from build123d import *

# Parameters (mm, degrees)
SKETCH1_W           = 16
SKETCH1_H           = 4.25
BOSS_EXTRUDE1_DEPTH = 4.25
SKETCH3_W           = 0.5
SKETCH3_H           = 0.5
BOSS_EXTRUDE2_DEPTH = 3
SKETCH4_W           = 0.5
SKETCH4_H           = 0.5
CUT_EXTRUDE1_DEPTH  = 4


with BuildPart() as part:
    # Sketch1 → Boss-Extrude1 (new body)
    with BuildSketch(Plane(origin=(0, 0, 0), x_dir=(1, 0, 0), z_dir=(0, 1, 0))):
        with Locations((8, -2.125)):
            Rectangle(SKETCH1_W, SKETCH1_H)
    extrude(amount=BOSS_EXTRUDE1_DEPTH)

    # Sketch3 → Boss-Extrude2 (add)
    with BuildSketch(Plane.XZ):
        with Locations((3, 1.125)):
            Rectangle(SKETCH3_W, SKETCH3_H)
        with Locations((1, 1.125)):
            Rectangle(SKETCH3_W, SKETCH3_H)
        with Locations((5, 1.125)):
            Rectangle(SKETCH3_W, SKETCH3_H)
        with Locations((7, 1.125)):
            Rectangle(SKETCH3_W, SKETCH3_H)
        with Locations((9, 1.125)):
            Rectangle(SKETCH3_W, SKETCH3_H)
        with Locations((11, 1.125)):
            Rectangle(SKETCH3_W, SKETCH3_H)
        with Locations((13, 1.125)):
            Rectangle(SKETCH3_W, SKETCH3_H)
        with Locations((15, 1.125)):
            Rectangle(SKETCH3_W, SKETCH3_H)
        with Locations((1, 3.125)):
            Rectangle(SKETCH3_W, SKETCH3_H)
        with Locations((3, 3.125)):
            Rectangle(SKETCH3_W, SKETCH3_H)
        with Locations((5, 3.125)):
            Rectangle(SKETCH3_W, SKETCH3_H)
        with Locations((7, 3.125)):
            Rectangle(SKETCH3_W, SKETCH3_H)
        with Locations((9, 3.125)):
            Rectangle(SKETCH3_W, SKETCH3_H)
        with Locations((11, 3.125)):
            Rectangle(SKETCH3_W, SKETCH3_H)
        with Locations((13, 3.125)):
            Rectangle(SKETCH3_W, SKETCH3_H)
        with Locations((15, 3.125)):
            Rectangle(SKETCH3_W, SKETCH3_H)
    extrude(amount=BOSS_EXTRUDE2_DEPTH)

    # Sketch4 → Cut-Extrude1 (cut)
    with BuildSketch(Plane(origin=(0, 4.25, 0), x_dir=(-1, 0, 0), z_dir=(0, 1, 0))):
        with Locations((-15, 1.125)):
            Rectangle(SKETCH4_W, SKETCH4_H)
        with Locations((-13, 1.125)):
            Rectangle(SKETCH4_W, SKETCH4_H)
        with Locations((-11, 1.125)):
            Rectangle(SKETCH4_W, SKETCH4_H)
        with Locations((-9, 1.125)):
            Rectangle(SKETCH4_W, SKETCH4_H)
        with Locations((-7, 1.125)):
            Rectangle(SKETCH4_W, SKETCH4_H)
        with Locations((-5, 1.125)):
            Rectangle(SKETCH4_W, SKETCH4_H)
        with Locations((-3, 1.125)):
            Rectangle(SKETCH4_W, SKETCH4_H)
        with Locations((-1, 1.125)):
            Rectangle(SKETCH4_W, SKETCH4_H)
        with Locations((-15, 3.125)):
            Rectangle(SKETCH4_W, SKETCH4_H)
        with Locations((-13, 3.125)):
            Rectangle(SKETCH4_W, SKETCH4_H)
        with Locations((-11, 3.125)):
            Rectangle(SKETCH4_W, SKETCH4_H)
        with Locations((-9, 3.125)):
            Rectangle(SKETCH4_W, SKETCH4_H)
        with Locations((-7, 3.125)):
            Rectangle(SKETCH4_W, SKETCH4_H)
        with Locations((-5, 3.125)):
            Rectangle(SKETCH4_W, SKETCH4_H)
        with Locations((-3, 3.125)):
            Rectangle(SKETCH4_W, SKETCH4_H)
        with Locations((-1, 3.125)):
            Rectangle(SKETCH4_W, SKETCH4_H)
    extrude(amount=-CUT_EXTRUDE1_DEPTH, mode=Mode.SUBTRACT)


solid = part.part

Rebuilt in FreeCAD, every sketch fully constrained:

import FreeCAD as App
import Part
import Sketcher

V = App.Vector
Q = App.Units.Quantity

doc = App.newDocument("Part")
body = doc.addObject("PartDesign::Body", "Body")

# Sketch on XZ plane
sketch1 = body.newObject("Sketcher::SketchObject", "Sketch")
sketch1.AttachmentSupport = (doc.getObject("XZ_Plane"), [""])
sketch1.MapMode = "FlatFace"
sketch1.addGeometry(Part.LineSegment(V(0, 0, 0), V(0, 4.2, 0)), False)
sketch1.addGeometry(Part.LineSegment(V(0, 4.2, 0), V(16, 4.2, 0)), False)
sketch1.addGeometry(Part.LineSegment(V(16, 4.2, 0), V(16, 0, 0)), False)
sketch1.addGeometry(Part.LineSegment(V(16, 0, 0), V(0, 0, 0)), False)
sketch1.addConstraint(Sketcher.Constraint("Coincident", 0, 2, 1, 1))
sketch1.addConstraint(Sketcher.Constraint("Coincident", 1, 2, 2, 1))
sketch1.addConstraint(Sketcher.Constraint("Coincident", 2, 2, 3, 1))
sketch1.addConstraint(Sketcher.Constraint("Coincident", 3, 2, 0, 1))
sketch1.addConstraint(Sketcher.Constraint("Vertical", 0))
sketch1.addConstraint(Sketcher.Constraint("Horizontal", 1))
sketch1.addConstraint(Sketcher.Constraint("Vertical", 2))
sketch1.addConstraint(Sketcher.Constraint("Horizontal", 3))
sketch1.addConstraint(Sketcher.Constraint("Coincident", 3, 2, -1, 1))
sketch1.addConstraint(Sketcher.Constraint("DistanceX", 1, 1, 1, 2, Q("16 mm")))
sketch1.addConstraint(Sketcher.Constraint("DistanceY", 0, 1, 0, 2, Q("4.25 mm")))
pad1 = body.newObject("PartDesign::Pad", "Pad")
pad1.Profile = sketch1
pad1.Length = 4.25
pad1.Reversed = True

# Sketch on XZ plane
sketch2 = body.newObject("Sketcher::SketchObject", "Sketch001")
sketch2.AttachmentSupport = (doc.getObject("XZ_Plane"), [""])
sketch2.MapMode = "FlatFace"
sketch2.addGeometry(Part.LineSegment(V(2.8, 1.4, 0), V(2.8, 0.9, 0)), False)
sketch2.addGeometry(Part.LineSegment(V(2.8, 0.9, 0), V(3.2, 0.9, 0)), False)
sketch2.addGeometry(Part.LineSegment(V(3.2, 0.9, 0), V(3.2, 1.4, 0)), False)
sketch2.addGeometry(Part.LineSegment(V(3.2, 1.4, 0), V(2.8, 1.4, 0)), False)
sketch2.addGeometry(Part.LineSegment(V(0.8, 1.4, 0), V(0.8, 0.9, 0)), False)
sketch2.addGeometry(Part.LineSegment(V(0.8, 0.9, 0), V(1.2, 0.9, 0)), False)
sketch2.addGeometry(Part.LineSegment(V(1.2, 0.9, 0), V(1.2, 1.4, 0)), False)
sketch2.addGeometry(Part.LineSegment(V(1.2, 1.4, 0), V(0.8, 1.4, 0)), False)
sketch2.addGeometry(Part.LineSegment(V(4.8, 1.4, 0), V(4.8, 0.9, 0)), False)
sketch2.addGeometry(Part.LineSegment(V(4.8, 0.9, 0), V(5.2, 0.9, 0)), False)
sketch2.addGeometry(Part.LineSegment(V(5.2, 0.9, 0), V(5.2, 1.4, 0)), False)
sketch2.addGeometry(Part.LineSegment(V(5.2, 1.4, 0), V(4.8, 1.4, 0)), False)
sketch2.addGeometry(Part.LineSegment(V(6.8, 1.4, 0), V(6.8, 0.9, 0)), False)
sketch2.addGeometry(Part.LineSegment(V(6.8, 0.9, 0), V(7.2, 0.9, 0)), False)
sketch2.addGeometry(Part.LineSegment(V(7.2, 0.9, 0), V(7.2, 1.4, 0)), False)
sketch2.addGeometry(Part.LineSegment(V(7.2, 1.4, 0), V(6.8, 1.4, 0)), False)
sketch2.addGeometry(Part.LineSegment(V(8.8, 1.4, 0), V(8.8, 0.9, 0)), False)
sketch2.addGeometry(Part.LineSegment(V(8.8, 0.9, 0), V(9.2, 0.9, 0)), False)
sketch2.addGeometry(Part.LineSegment(V(9.2, 0.9, 0), V(9.2, 1.4, 0)), False)
sketch2.addGeometry(Part.LineSegment(V(9.2, 1.4, 0), V(8.8, 1.4, 0)), False)
sketch2.addGeometry(Part.LineSegment(V(10.8, 1.4, 0), V(10.8, 0.9, 0)), False)
sketch2.addGeometry(Part.LineSegment(V(10.8, 0.9, 0), V(11.2, 0.9, 0)), False)
sketch2.addGeometry(Part.LineSegment(V(11.2, 0.9, 0), V(11.2, 1.4, 0)), False)
sketch2.addGeometry(Part.LineSegment(V(11.2, 1.4, 0), V(10.8, 1.4, 0)), False)
sketch2.addGeometry(Part.LineSegment(V(12.8, 1.4, 0), V(12.8, 0.9, 0)), False)
sketch2.addGeometry(Part.LineSegment(V(12.8, 0.9, 0), V(13.2, 0.9, 0)), False)
sketch2.addGeometry(Part.LineSegment(V(13.2, 0.9, 0), V(13.2, 1.4, 0)), False)
sketch2.addGeometry(Part.LineSegment(V(13.2, 1.4, 0), V(12.8, 1.4, 0)), False)
sketch2.addGeometry(Part.LineSegment(V(14.8, 1.4, 0), V(14.8, 0.9, 0)), False)
sketch2.addGeometry(Part.LineSegment(V(14.8, 0.9, 0), V(15.2, 0.9, 0)), False)
sketch2.addGeometry(Part.LineSegment(V(15.2, 0.9, 0), V(15.2, 1.4, 0)), False)
sketch2.addGeometry(Part.LineSegment(V(15.2, 1.4, 0), V(14.8, 1.4, 0)), False)
sketch2.addGeometry(Part.LineSegment(V(0.8, 3.4, 0), V(0.8, 2.9, 0)), False)
sketch2.addGeometry(Part.LineSegment(V(0.8, 2.9, 0), V(1.2, 2.9, 0)), False)
sketch2.addGeometry(Part.LineSegment(V(1.2, 2.9, 0), V(1.2, 3.4, 0)), False)
sketch2.addGeometry(Part.LineSegment(V(1.2, 3.4, 0), V(0.8, 3.4, 0)), False)
sketch2.addGeometry(Part.LineSegment(V(2.8, 3.4, 0), V(2.8, 2.9, 0)), False)
sketch2.addGeometry(Part.LineSegment(V(2.8, 2.9, 0), V(3.2, 2.9, 0)), False)
sketch2.addGeometry(Part.LineSegment(V(3.2, 2.9, 0), V(3.2, 3.4, 0)), False)
sketch2.addGeometry(Part.LineSegment(V(3.2, 3.4, 0), V(2.8, 3.4, 0)), False)
sketch2.addGeometry(Part.LineSegment(V(4.8, 3.4, 0), V(4.8, 2.9, 0)), False)
sketch2.addGeometry(Part.LineSegment(V(4.8, 2.9, 0), V(5.2, 2.9, 0)), False)
sketch2.addGeometry(Part.LineSegment(V(5.2, 2.9, 0), V(5.2, 3.4, 0)), False)
sketch2.addGeometry(Part.LineSegment(V(5.2, 3.4, 0), V(4.8, 3.4, 0)), False)
sketch2.addGeometry(Part.LineSegment(V(6.8, 3.4, 0), V(6.8, 2.9, 0)), False)
sketch2.addGeometry(Part.LineSegment(V(6.8, 2.9, 0), V(7.2, 2.9, 0)), False)
sketch2.addGeometry(Part.LineSegment(V(7.2, 2.9, 0), V(7.2, 3.4, 0)), False)
sketch2.addGeometry(Part.LineSegment(V(7.2, 3.4, 0), V(6.8, 3.4, 0)), False)
sketch2.addGeometry(Part.LineSegment(V(8.8, 3.4, 0), V(8.8, 2.9, 0)), False)
sketch2.addGeometry(Part.LineSegment(V(8.8, 2.9, 0), V(9.2, 2.9, 0)), False)
sketch2.addGeometry(Part.LineSegment(V(9.2, 2.9, 0), V(9.2, 3.4, 0)), False)
sketch2.addGeometry(Part.LineSegment(V(9.2, 3.4, 0), V(8.8, 3.4, 0)), False)
sketch2.addGeometry(Part.LineSegment(V(10.8, 3.4, 0), V(10.8, 2.9, 0)), False)
sketch2.addGeometry(Part.LineSegment(V(10.8, 2.9, 0), V(11.2, 2.9, 0)), False)
sketch2.addGeometry(Part.LineSegment(V(11.2, 2.9, 0), V(11.2, 3.4, 0)), False)
sketch2.addGeometry(Part.LineSegment(V(11.2, 3.4, 0), V(10.8, 3.4, 0)), False)
sketch2.addGeometry(Part.LineSegment(V(12.8, 3.4, 0), V(12.8, 2.9, 0)), False)
sketch2.addGeometry(Part.LineSegment(V(12.8, 2.9, 0), V(13.2, 2.9, 0)), False)
sketch2.addGeometry(Part.LineSegment(V(13.2, 2.9, 0), V(13.2, 3.4, 0)), False)
sketch2.addGeometry(Part.LineSegment(V(13.2, 3.4, 0), V(12.8, 3.4, 0)), False)
sketch2.addGeometry(Part.LineSegment(V(14.8, 3.4, 0), V(14.8, 2.9, 0)), False)
sketch2.addGeometry(Part.LineSegment(V(14.8, 2.9, 0), V(15.2, 2.9, 0)), False)
sketch2.addGeometry(Part.LineSegment(V(15.2, 2.9, 0), V(15.2, 3.4, 0)), False)
sketch2.addGeometry(Part.LineSegment(V(15.2, 3.4, 0), V(14.8, 3.4, 0)), False)
sketch2.addConstraint(Sketcher.Constraint("Coincident", 0, 2, 1, 1))
sketch2.addConstraint(Sketcher.Constraint("Coincident", 1, 2, 2, 1))
sketch2.addConstraint(Sketcher.Constraint("Coincident", 2, 2, 3, 1))
sketch2.addConstraint(Sketcher.Constraint("Coincident", 3, 2, 0, 1))
sketch2.addConstraint(Sketcher.Constraint("Coincident", 4, 2, 5, 1))
sketch2.addConstraint(Sketcher.Constraint("Coincident", 5, 2, 6, 1))
sketch2.addConstraint(Sketcher.Constraint("Coincident", 6, 2, 7, 1))
sketch2.addConstraint(Sketcher.Constraint("Coincident", 7, 2, 4, 1))
sketch2.addConstraint(Sketcher.Constraint("Coincident", 8, 2, 9, 1))
sketch2.addConstraint(Sketcher.Constraint("Coincident", 9, 2, 10, 1))
sketch2.addConstraint(Sketcher.Constraint("Coincident", 10, 2, 11, 1))
sketch2.addConstraint(Sketcher.Constraint("Coincident", 11, 2, 8, 1))
sketch2.addConstraint(Sketcher.Constraint("Coincident", 12, 2, 13, 1))
sketch2.addConstraint(Sketcher.Constraint("Coincident", 13, 2, 14, 1))
sketch2.addConstraint(Sketcher.Constraint("Coincident", 14, 2, 15, 1))
sketch2.addConstraint(Sketcher.Constraint("Coincident", 15, 2, 12, 1))
sketch2.addConstraint(Sketcher.Constraint("Coincident", 16, 2, 17, 1))
sketch2.addConstraint(Sketcher.Constraint("Coincident", 17, 2, 18, 1))
sketch2.addConstraint(Sketcher.Constraint("Coincident", 18, 2, 19, 1))
sketch2.addConstraint(Sketcher.Constraint("Coincident", 19, 2, 16, 1))
sketch2.addConstraint(Sketcher.Constraint("Coincident", 20, 2, 21, 1))
sketch2.addConstraint(Sketcher.Constraint("Coincident", 21, 2, 22, 1))
sketch2.addConstraint(Sketcher.Constraint("Coincident", 22, 2, 23, 1))
sketch2.addConstraint(Sketcher.Constraint("Coincident", 23, 2, 20, 1))
sketch2.addConstraint(Sketcher.Constraint("Coincident", 24, 2, 25, 1))
sketch2.addConstraint(Sketcher.Constraint("Coincident", 25, 2, 26, 1))
sketch2.addConstraint(Sketcher.Constraint("Coincident", 26, 2, 27, 1))
sketch2.addConstraint(Sketcher.Constraint("Coincident", 27, 2, 24, 1))
sketch2.addConstraint(Sketcher.Constraint("Coincident", 28, 2, 29, 1))
sketch2.addConstraint(Sketcher.Constraint("Coincident", 29, 2, 30, 1))
sketch2.addConstraint(Sketcher.Constraint("Coincident", 30, 2, 31, 1))
sketch2.addConstraint(Sketcher.Constraint("Coincident", 31, 2, 28, 1))
sketch2.addConstraint(Sketcher.Constraint("Coincident", 32, 2, 33, 1))
sketch2.addConstraint(Sketcher.Constraint("Coincident", 33, 2, 34, 1))
sketch2.addConstraint(Sketcher.Constraint("Coincident", 34, 2, 35, 1))
sketch2.addConstraint(Sketcher.Constraint("Coincident", 35, 2, 32, 1))
sketch2.addConstraint(Sketcher.Constraint("Coincident", 36, 2, 37, 1))
sketch2.addConstraint(Sketcher.Constraint("Coincident", 37, 2, 38, 1))
sketch2.addConstraint(Sketcher.Constraint("Coincident", 38, 2, 39, 1))
sketch2.addConstraint(Sketcher.Constraint("Coincident", 39, 2, 36, 1))
sketch2.addConstraint(Sketcher.Constraint("Coincident", 40, 2, 41, 1))
sketch2.addConstraint(Sketcher.Constraint("Coincident", 41, 2, 42, 1))
sketch2.addConstraint(Sketcher.Constraint("Coincident", 42, 2, 43, 1))
sketch2.addConstraint(Sketcher.Constraint("Coincident", 43, 2, 40, 1))
sketch2.addConstraint(Sketcher.Constraint("Coincident", 44, 2, 45, 1))
sketch2.addConstraint(Sketcher.Constraint("Coincident", 45, 2, 46, 1))
sketch2.addConstraint(Sketcher.Constraint("Coincident", 46, 2, 47, 1))
sketch2.addConstraint(Sketcher.Constraint("Coincident", 47, 2, 44, 1))
sketch2.addConstraint(Sketcher.Constraint("Coincident", 48, 2, 49, 1))
sketch2.addConstraint(Sketcher.Constraint("Coincident", 49, 2, 50, 1))
sketch2.addConstraint(Sketcher.Constraint("Coincident", 50, 2, 51, 1))
sketch2.addConstraint(Sketcher.Constraint("Coincident", 51, 2, 48, 1))
sketch2.addConstraint(Sketcher.Constraint("Coincident", 52, 2, 53, 1))
sketch2.addConstraint(Sketcher.Constraint("Coincident", 53, 2, 54, 1))
sketch2.addConstraint(Sketcher.Constraint("Coincident", 54, 2, 55, 1))
sketch2.addConstraint(Sketcher.Constraint("Coincident", 55, 2, 52, 1))
sketch2.addConstraint(Sketcher.Constraint("Coincident", 56, 2, 57, 1))
sketch2.addConstraint(Sketcher.Constraint("Coincident", 57, 2, 58, 1))
sketch2.addConstraint(Sketcher.Constraint("Coincident", 58, 2, 59, 1))
sketch2.addConstraint(Sketcher.Constraint("Coincident", 59, 2, 56, 1))
sketch2.addConstraint(Sketcher.Constraint("Coincident", 60, 2, 61, 1))
sketch2.addConstraint(Sketcher.Constraint("Coincident", 61, 2, 62, 1))
sketch2.addConstraint(Sketcher.Constraint("Coincident", 62, 2, 63, 1))
sketch2.addConstraint(Sketcher.Constraint("Coincident", 63, 2, 60, 1))
sketch2.addConstraint(Sketcher.Constraint("Vertical", 0))
sketch2.addConstraint(Sketcher.Constraint("Horizontal", 1))
sketch2.addConstraint(Sketcher.Constraint("Vertical", 2))
sketch2.addConstraint(Sketcher.Constraint("Horizontal", 3))
sketch2.addConstraint(Sketcher.Constraint("Vertical", 4))
sketch2.addConstraint(Sketcher.Constraint("Horizontal", 5))
sketch2.addConstraint(Sketcher.Constraint("Vertical", 6))
sketch2.addConstraint(Sketcher.Constraint("Horizontal", 7))
sketch2.addConstraint(Sketcher.Constraint("Vertical", 8))
sketch2.addConstraint(Sketcher.Constraint("Horizontal", 9))
sketch2.addConstraint(Sketcher.Constraint("Vertical", 10))
sketch2.addConstraint(Sketcher.Constraint("Horizontal", 11))
sketch2.addConstraint(Sketcher.Constraint("Vertical", 12))
sketch2.addConstraint(Sketcher.Constraint("Horizontal", 13))
sketch2.addConstraint(Sketcher.Constraint("Vertical", 14))
sketch2.addConstraint(Sketcher.Constraint("Horizontal", 15))
sketch2.addConstraint(Sketcher.Constraint("Vertical", 16))
sketch2.addConstraint(Sketcher.Constraint("Horizontal", 17))
sketch2.addConstraint(Sketcher.Constraint("Vertical", 18))
sketch2.addConstraint(Sketcher.Constraint("Horizontal", 19))
sketch2.addConstraint(Sketcher.Constraint("Vertical", 20))
sketch2.addConstraint(Sketcher.Constraint("Horizontal", 21))
sketch2.addConstraint(Sketcher.Constraint("Vertical", 22))
sketch2.addConstraint(Sketcher.Constraint("Horizontal", 23))
sketch2.addConstraint(Sketcher.Constraint("Vertical", 24))
sketch2.addConstraint(Sketcher.Constraint("Horizontal", 25))
sketch2.addConstraint(Sketcher.Constraint("Vertical", 26))
sketch2.addConstraint(Sketcher.Constraint("Horizontal", 27))
sketch2.addConstraint(Sketcher.Constraint("Vertical", 28))
sketch2.addConstraint(Sketcher.Constraint("Horizontal", 29))
sketch2.addConstraint(Sketcher.Constraint("Vertical", 30))
sketch2.addConstraint(Sketcher.Constraint("Horizontal", 31))
sketch2.addConstraint(Sketcher.Constraint("Vertical", 32))
sketch2.addConstraint(Sketcher.Constraint("Horizontal", 33))
sketch2.addConstraint(Sketcher.Constraint("Vertical", 34))
sketch2.addConstraint(Sketcher.Constraint("Horizontal", 35))
sketch2.addConstraint(Sketcher.Constraint("Vertical", 36))
sketch2.addConstraint(Sketcher.Constraint("Horizontal", 37))
sketch2.addConstraint(Sketcher.Constraint("Vertical", 38))
sketch2.addConstraint(Sketcher.Constraint("Horizontal", 39))
sketch2.addConstraint(Sketcher.Constraint("Vertical", 40))
sketch2.addConstraint(Sketcher.Constraint("Horizontal", 41))
sketch2.addConstraint(Sketcher.Constraint("Vertical", 42))
sketch2.addConstraint(Sketcher.Constraint("Horizontal", 43))
sketch2.addConstraint(Sketcher.Constraint("Vertical", 44))
sketch2.addConstraint(Sketcher.Constraint("Horizontal", 45))
sketch2.addConstraint(Sketcher.Constraint("Vertical", 46))
sketch2.addConstraint(Sketcher.Constraint("Horizontal", 47))
sketch2.addConstraint(Sketcher.Constraint("Vertical", 48))
sketch2.addConstraint(Sketcher.Constraint("Horizontal", 49))
sketch2.addConstraint(Sketcher.Constraint("Vertical", 50))
sketch2.addConstraint(Sketcher.Constraint("Horizontal", 51))
sketch2.addConstraint(Sketcher.Constraint("Vertical", 52))
sketch2.addConstraint(Sketcher.Constraint("Horizontal", 53))
sketch2.addConstraint(Sketcher.Constraint("Vertical", 54))
sketch2.addConstraint(Sketcher.Constraint("Horizontal", 55))
sketch2.addConstraint(Sketcher.Constraint("Vertical", 56))
sketch2.addConstraint(Sketcher.Constraint("Horizontal", 57))
sketch2.addConstraint(Sketcher.Constraint("Vertical", 58))
sketch2.addConstraint(Sketcher.Constraint("Horizontal", 59))
sketch2.addConstraint(Sketcher.Constraint("Vertical", 60))
sketch2.addConstraint(Sketcher.Constraint("Horizontal", 61))
sketch2.addConstraint(Sketcher.Constraint("Vertical", 62))
sketch2.addConstraint(Sketcher.Constraint("Horizontal", 63))
sketch2.addConstraint(Sketcher.Constraint("Horizontal", 1, 2, 4, 2))
sketch2.addConstraint(Sketcher.Constraint("Horizontal", 3, 2, 6, 2))
sketch2.addConstraint(Sketcher.Constraint("Horizontal", 5, 2, 8, 2))
sketch2.addConstraint(Sketcher.Constraint("Horizontal", 7, 2, 10, 2))
sketch2.addConstraint(Sketcher.Constraint("Horizontal", 9, 2, 12, 2))
sketch2.addConstraint(Sketcher.Constraint("Horizontal", 11, 2, 14, 2))
sketch2.addConstraint(Sketcher.Constraint("Horizontal", 13, 2, 16, 2))
sketch2.addConstraint(Sketcher.Constraint("Horizontal", 15, 2, 18, 2))
sketch2.addConstraint(Sketcher.Constraint("Horizontal", 17, 2, 20, 2))
sketch2.addConstraint(Sketcher.Constraint("Horizontal", 19, 2, 22, 2))
sketch2.addConstraint(Sketcher.Constraint("Horizontal", 21, 2, 24, 2))
sketch2.addConstraint(Sketcher.Constraint("Horizontal", 23, 2, 26, 2))
sketch2.addConstraint(Sketcher.Constraint("Horizontal", 25, 2, 28, 2))
sketch2.addConstraint(Sketcher.Constraint("Horizontal", 27, 2, 30, 2))
sketch2.addConstraint(Sketcher.Constraint("Horizontal", 33, 2, 36, 2))
sketch2.addConstraint(Sketcher.Constraint("Horizontal", 35, 2, 38, 2))
sketch2.addConstraint(Sketcher.Constraint("Horizontal", 37, 2, 40, 2))
sketch2.addConstraint(Sketcher.Constraint("Horizontal", 39, 2, 42, 2))
sketch2.addConstraint(Sketcher.Constraint("Horizontal", 41, 2, 44, 2))
sketch2.addConstraint(Sketcher.Constraint("Horizontal", 43, 2, 46, 2))
sketch2.addConstraint(Sketcher.Constraint("Horizontal", 45, 2, 48, 2))
sketch2.addConstraint(Sketcher.Constraint("Horizontal", 47, 2, 50, 2))
sketch2.addConstraint(Sketcher.Constraint("Horizontal", 49, 2, 52, 2))
sketch2.addConstraint(Sketcher.Constraint("Horizontal", 51, 2, 54, 2))
sketch2.addConstraint(Sketcher.Constraint("Horizontal", 53, 2, 56, 2))
sketch2.addConstraint(Sketcher.Constraint("Horizontal", 55, 2, 58, 2))
sketch2.addConstraint(Sketcher.Constraint("Horizontal", 57, 2, 60, 2))
sketch2.addConstraint(Sketcher.Constraint("Horizontal", 59, 2, 62, 2))
sketch2.addConstraint(Sketcher.Constraint("Vertical", 7, 2, 32, 2))
sketch2.addConstraint(Sketcher.Constraint("Vertical", 6, 2, 33, 2))
sketch2.addConstraint(Sketcher.Constraint("Vertical", 3, 2, 36, 2))
sketch2.addConstraint(Sketcher.Constraint("Vertical", 2, 2, 37, 2))
sketch2.addConstraint(Sketcher.Constraint("Vertical", 11, 2, 40, 2))
sketch2.addConstraint(Sketcher.Constraint("Vertical", 10, 2, 41, 2))
sketch2.addConstraint(Sketcher.Constraint("Vertical", 15, 2, 44, 2))
sketch2.addConstraint(Sketcher.Constraint("Vertical", 14, 2, 45, 2))
sketch2.addConstraint(Sketcher.Constraint("Vertical", 19, 2, 48, 2))
sketch2.addConstraint(Sketcher.Constraint("Vertical", 18, 2, 49, 2))
sketch2.addConstraint(Sketcher.Constraint("Vertical", 23, 2, 52, 2))
sketch2.addConstraint(Sketcher.Constraint("Vertical", 22, 2, 53, 2))
sketch2.addConstraint(Sketcher.Constraint("Vertical", 27, 2, 56, 2))
sketch2.addConstraint(Sketcher.Constraint("Vertical", 26, 2, 57, 2))
sketch2.addConstraint(Sketcher.Constraint("Vertical", 31, 2, 60, 2))
sketch2.addConstraint(Sketcher.Constraint("Vertical", 30, 2, 61, 2))
sketch2.addConstraint(Sketcher.Constraint("Equal", 3, 5))
sketch2.addConstraint(Sketcher.Constraint("Equal", 7, 9))
sketch2.addConstraint(Sketcher.Constraint("Equal", 11, 13))
sketch2.addConstraint(Sketcher.Constraint("Equal", 15, 17))
sketch2.addConstraint(Sketcher.Constraint("Equal", 19, 21))
sketch2.addConstraint(Sketcher.Constraint("Equal", 23, 25))
sketch2.addConstraint(Sketcher.Constraint("Equal", 27, 29))
sketch2.addConstraint(Sketcher.Constraint("Equal", 63, 0))
sketch2.addConstraint(Sketcher.Constraint("Equal", 30, 32))
sketch2.addConstraint(Sketcher.Constraint("DistanceX", 1, 1, 1, 2, Q("0.5 mm")))
sketch2.addConstraint(Sketcher.Constraint("DistanceX", -1, 1, 0, 2, Q("2.75 mm")))
sketch2.addConstraint(Sketcher.Constraint("DistanceX", -1, 1, 4, 2, Q("0.75 mm")))
sketch2.addConstraint(Sketcher.Constraint("DistanceX", -1, 1, 8, 2, Q("4.75 mm")))
sketch2.addConstraint(Sketcher.Constraint("DistanceX", -1, 1, 12, 2, Q("6.75 mm")))
sketch2.addConstraint(Sketcher.Constraint("DistanceX", -1, 1, 16, 2, Q("8.75 mm")))
sketch2.addConstraint(Sketcher.Constraint("DistanceX", -1, 1, 20, 2, Q("10.75 mm")))
sketch2.addConstraint(Sketcher.Constraint("DistanceX", -1, 1, 24, 2, Q("12.75 mm")))
sketch2.addConstraint(Sketcher.Constraint("DistanceX", -1, 1, 28, 2, Q("14.75 mm")))
sketch2.addConstraint(Sketcher.Constraint("DistanceY", -1, 1, 0, 2, Q("0.875 mm")))
sketch2.addConstraint(Sketcher.Constraint("DistanceY", -1, 1, 32, 2, Q("2.875 mm")))
pad2 = body.newObject("PartDesign::Pad", "Pad001")
pad2.Profile = sketch2
pad2.Length = 3

# Sketch on XZ plane
sketch3 = body.newObject("Sketcher::SketchObject", "Sketch002")
sketch3.AttachmentSupport = (doc.getObject("XZ_Plane"), [""])
sketch3.MapMode = "FlatFace"
sketch3.AttachmentOffset = App.Placement(V(0, 0, -4.25), App.Rotation())
sketch3.addGeometry(Part.LineSegment(V(15.2, 1.4, 0), V(15.2, 0.9, 0)), False)
sketch3.addGeometry(Part.LineSegment(V(15.2, 0.9, 0), V(14.8, 0.9, 0)), False)
sketch3.addGeometry(Part.LineSegment(V(14.8, 0.9, 0), V(14.8, 1.4, 0)), False)
sketch3.addGeometry(Part.LineSegment(V(14.8, 1.4, 0), V(15.2, 1.4, 0)), False)
sketch3.addGeometry(Part.LineSegment(V(13.2, 1.4, 0), V(13.2, 0.9, 0)), False)
sketch3.addGeometry(Part.LineSegment(V(13.2, 0.9, 0), V(12.8, 0.9, 0)), False)
sketch3.addGeometry(Part.LineSegment(V(12.8, 0.9, 0), V(12.8, 1.4, 0)), False)
sketch3.addGeometry(Part.LineSegment(V(12.8, 1.4, 0), V(13.2, 1.4, 0)), False)
sketch3.addGeometry(Part.LineSegment(V(11.2, 1.4, 0), V(11.2, 0.9, 0)), False)
sketch3.addGeometry(Part.LineSegment(V(11.2, 0.9, 0), V(10.8, 0.9, 0)), False)
sketch3.addGeometry(Part.LineSegment(V(10.8, 0.9, 0), V(10.8, 1.4, 0)), False)
sketch3.addGeometry(Part.LineSegment(V(10.8, 1.4, 0), V(11.2, 1.4, 0)), False)
sketch3.addGeometry(Part.LineSegment(V(9.2, 1.4, 0), V(9.2, 0.9, 0)), False)
sketch3.addGeometry(Part.LineSegment(V(9.2, 0.9, 0), V(8.8, 0.9, 0)), False)
sketch3.addGeometry(Part.LineSegment(V(8.8, 0.9, 0), V(8.8, 1.4, 0)), False)
sketch3.addGeometry(Part.LineSegment(V(8.8, 1.4, 0), V(9.2, 1.4, 0)), False)
sketch3.addGeometry(Part.LineSegment(V(7.2, 1.4, 0), V(7.2, 0.9, 0)), False)
sketch3.addGeometry(Part.LineSegment(V(7.2, 0.9, 0), V(6.8, 0.9, 0)), False)
sketch3.addGeometry(Part.LineSegment(V(6.8, 0.9, 0), V(6.8, 1.4, 0)), False)
sketch3.addGeometry(Part.LineSegment(V(6.8, 1.4, 0), V(7.2, 1.4, 0)), False)
sketch3.addGeometry(Part.LineSegment(V(5.2, 1.4, 0), V(5.2, 0.9, 0)), False)
sketch3.addGeometry(Part.LineSegment(V(5.2, 0.9, 0), V(4.8, 0.9, 0)), False)
sketch3.addGeometry(Part.LineSegment(V(4.8, 0.9, 0), V(4.8, 1.4, 0)), False)
sketch3.addGeometry(Part.LineSegment(V(4.8, 1.4, 0), V(5.2, 1.4, 0)), False)
sketch3.addGeometry(Part.LineSegment(V(3.2, 1.4, 0), V(3.2, 0.9, 0)), False)
sketch3.addGeometry(Part.LineSegment(V(3.2, 0.9, 0), V(2.8, 0.9, 0)), False)
sketch3.addGeometry(Part.LineSegment(V(2.8, 0.9, 0), V(2.8, 1.4, 0)), False)
sketch3.addGeometry(Part.LineSegment(V(2.8, 1.4, 0), V(3.2, 1.4, 0)), False)
sketch3.addGeometry(Part.LineSegment(V(1.2, 1.4, 0), V(1.2, 0.9, 0)), False)
sketch3.addGeometry(Part.LineSegment(V(1.2, 0.9, 0), V(0.8, 0.9, 0)), False)
sketch3.addGeometry(Part.LineSegment(V(0.8, 0.9, 0), V(0.8, 1.4, 0)), False)
sketch3.addGeometry(Part.LineSegment(V(0.8, 1.4, 0), V(1.2, 1.4, 0)), False)
sketch3.addGeometry(Part.LineSegment(V(15.2, 3.4, 0), V(15.2, 2.9, 0)), False)
sketch3.addGeometry(Part.LineSegment(V(15.2, 2.9, 0), V(14.8, 2.9, 0)), False)
sketch3.addGeometry(Part.LineSegment(V(14.8, 2.9, 0), V(14.8, 3.4, 0)), False)
sketch3.addGeometry(Part.LineSegment(V(14.8, 3.4, 0), V(15.2, 3.4, 0)), False)
sketch3.addGeometry(Part.LineSegment(V(13.2, 3.4, 0), V(13.2, 2.9, 0)), False)
sketch3.addGeometry(Part.LineSegment(V(13.2, 2.9, 0), V(12.8, 2.9, 0)), False)
sketch3.addGeometry(Part.LineSegment(V(12.8, 2.9, 0), V(12.8, 3.4, 0)), False)
sketch3.addGeometry(Part.LineSegment(V(12.8, 3.4, 0), V(13.2, 3.4, 0)), False)
sketch3.addGeometry(Part.LineSegment(V(11.2, 3.4, 0), V(11.2, 2.9, 0)), False)
sketch3.addGeometry(Part.LineSegment(V(11.2, 2.9, 0), V(10.8, 2.9, 0)), False)
sketch3.addGeometry(Part.LineSegment(V(10.8, 2.9, 0), V(10.8, 3.4, 0)), False)
sketch3.addGeometry(Part.LineSegment(V(10.8, 3.4, 0), V(11.2, 3.4, 0)), False)
sketch3.addGeometry(Part.LineSegment(V(9.2, 3.4, 0), V(9.2, 2.9, 0)), False)
sketch3.addGeometry(Part.LineSegment(V(9.2, 2.9, 0), V(8.8, 2.9, 0)), False)
sketch3.addGeometry(Part.LineSegment(V(8.8, 2.9, 0), V(8.8, 3.4, 0)), False)
sketch3.addGeometry(Part.LineSegment(V(8.8, 3.4, 0), V(9.2, 3.4, 0)), False)
sketch3.addGeometry(Part.LineSegment(V(7.2, 3.4, 0), V(7.2, 2.9, 0)), False)
sketch3.addGeometry(Part.LineSegment(V(7.2, 2.9, 0), V(6.8, 2.9, 0)), False)
sketch3.addGeometry(Part.LineSegment(V(6.8, 2.9, 0), V(6.8, 3.4, 0)), False)
sketch3.addGeometry(Part.LineSegment(V(6.8, 3.4, 0), V(7.2, 3.4, 0)), False)
sketch3.addGeometry(Part.LineSegment(V(5.2, 3.4, 0), V(5.2, 2.9, 0)), False)
sketch3.addGeometry(Part.LineSegment(V(5.2, 2.9, 0), V(4.8, 2.9, 0)), False)
sketch3.addGeometry(Part.LineSegment(V(4.8, 2.9, 0), V(4.8, 3.4, 0)), False)
sketch3.addGeometry(Part.LineSegment(V(4.8, 3.4, 0), V(5.2, 3.4, 0)), False)
sketch3.addGeometry(Part.LineSegment(V(3.2, 3.4, 0), V(3.2, 2.9, 0)), False)
sketch3.addGeometry(Part.LineSegment(V(3.2, 2.9, 0), V(2.8, 2.9, 0)), False)
sketch3.addGeometry(Part.LineSegment(V(2.8, 2.9, 0), V(2.8, 3.4, 0)), False)
sketch3.addGeometry(Part.LineSegment(V(2.8, 3.4, 0), V(3.2, 3.4, 0)), False)
sketch3.addGeometry(Part.LineSegment(V(1.2, 3.4, 0), V(1.2, 2.9, 0)), False)
sketch3.addGeometry(Part.LineSegment(V(1.2, 2.9, 0), V(0.8, 2.9, 0)), False)
sketch3.addGeometry(Part.LineSegment(V(0.8, 2.9, 0), V(0.8, 3.4, 0)), False)
sketch3.addGeometry(Part.LineSegment(V(0.8, 3.4, 0), V(1.2, 3.4, 0)), False)
sketch3.addConstraint(Sketcher.Constraint("Coincident", 0, 2, 1, 1))
sketch3.addConstraint(Sketcher.Constraint("Coincident", 1, 2, 2, 1))
sketch3.addConstraint(Sketcher.Constraint("Coincident", 2, 2, 3, 1))
sketch3.addConstraint(Sketcher.Constraint("Coincident", 3, 2, 0, 1))
sketch3.addConstraint(Sketcher.Constraint("Coincident", 4, 2, 5, 1))
sketch3.addConstraint(Sketcher.Constraint("Coincident", 5, 2, 6, 1))
sketch3.addConstraint(Sketcher.Constraint("Coincident", 6, 2, 7, 1))
sketch3.addConstraint(Sketcher.Constraint("Coincident", 7, 2, 4, 1))
sketch3.addConstraint(Sketcher.Constraint("Coincident", 8, 2, 9, 1))
sketch3.addConstraint(Sketcher.Constraint("Coincident", 9, 2, 10, 1))
sketch3.addConstraint(Sketcher.Constraint("Coincident", 10, 2, 11, 1))
sketch3.addConstraint(Sketcher.Constraint("Coincident", 11, 2, 8, 1))
sketch3.addConstraint(Sketcher.Constraint("Coincident", 12, 2, 13, 1))
sketch3.addConstraint(Sketcher.Constraint("Coincident", 13, 2, 14, 1))
sketch3.addConstraint(Sketcher.Constraint("Coincident", 14, 2, 15, 1))
sketch3.addConstraint(Sketcher.Constraint("Coincident", 15, 2, 12, 1))
sketch3.addConstraint(Sketcher.Constraint("Coincident", 16, 2, 17, 1))
sketch3.addConstraint(Sketcher.Constraint("Coincident", 17, 2, 18, 1))
sketch3.addConstraint(Sketcher.Constraint("Coincident", 18, 2, 19, 1))
sketch3.addConstraint(Sketcher.Constraint("Coincident", 19, 2, 16, 1))
sketch3.addConstraint(Sketcher.Constraint("Coincident", 20, 2, 21, 1))
sketch3.addConstraint(Sketcher.Constraint("Coincident", 21, 2, 22, 1))
sketch3.addConstraint(Sketcher.Constraint("Coincident", 22, 2, 23, 1))
sketch3.addConstraint(Sketcher.Constraint("Coincident", 23, 2, 20, 1))
sketch3.addConstraint(Sketcher.Constraint("Coincident", 24, 2, 25, 1))
sketch3.addConstraint(Sketcher.Constraint("Coincident", 25, 2, 26, 1))
sketch3.addConstraint(Sketcher.Constraint("Coincident", 26, 2, 27, 1))
sketch3.addConstraint(Sketcher.Constraint("Coincident", 27, 2, 24, 1))
sketch3.addConstraint(Sketcher.Constraint("Coincident", 28, 2, 29, 1))
sketch3.addConstraint(Sketcher.Constraint("Coincident", 29, 2, 30, 1))
sketch3.addConstraint(Sketcher.Constraint("Coincident", 30, 2, 31, 1))
sketch3.addConstraint(Sketcher.Constraint("Coincident", 31, 2, 28, 1))
sketch3.addConstraint(Sketcher.Constraint("Coincident", 32, 2, 33, 1))
sketch3.addConstraint(Sketcher.Constraint("Coincident", 33, 2, 34, 1))
sketch3.addConstraint(Sketcher.Constraint("Coincident", 34, 2, 35, 1))
sketch3.addConstraint(Sketcher.Constraint("Coincident", 35, 2, 32, 1))
sketch3.addConstraint(Sketcher.Constraint("Coincident", 36, 2, 37, 1))
sketch3.addConstraint(Sketcher.Constraint("Coincident", 37, 2, 38, 1))
sketch3.addConstraint(Sketcher.Constraint("Coincident", 38, 2, 39, 1))
sketch3.addConstraint(Sketcher.Constraint("Coincident", 39, 2, 36, 1))
sketch3.addConstraint(Sketcher.Constraint("Coincident", 40, 2, 41, 1))
sketch3.addConstraint(Sketcher.Constraint("Coincident", 41, 2, 42, 1))
sketch3.addConstraint(Sketcher.Constraint("Coincident", 42, 2, 43, 1))
sketch3.addConstraint(Sketcher.Constraint("Coincident", 43, 2, 40, 1))
sketch3.addConstraint(Sketcher.Constraint("Coincident", 44, 2, 45, 1))
sketch3.addConstraint(Sketcher.Constraint("Coincident", 45, 2, 46, 1))
sketch3.addConstraint(Sketcher.Constraint("Coincident", 46, 2, 47, 1))
sketch3.addConstraint(Sketcher.Constraint("Coincident", 47, 2, 44, 1))
sketch3.addConstraint(Sketcher.Constraint("Coincident", 48, 2, 49, 1))
sketch3.addConstraint(Sketcher.Constraint("Coincident", 49, 2, 50, 1))
sketch3.addConstraint(Sketcher.Constraint("Coincident", 50, 2, 51, 1))
sketch3.addConstraint(Sketcher.Constraint("Coincident", 51, 2, 48, 1))
sketch3.addConstraint(Sketcher.Constraint("Coincident", 52, 2, 53, 1))
sketch3.addConstraint(Sketcher.Constraint("Coincident", 53, 2, 54, 1))
sketch3.addConstraint(Sketcher.Constraint("Coincident", 54, 2, 55, 1))
sketch3.addConstraint(Sketcher.Constraint("Coincident", 55, 2, 52, 1))
sketch3.addConstraint(Sketcher.Constraint("Coincident", 56, 2, 57, 1))
sketch3.addConstraint(Sketcher.Constraint("Coincident", 57, 2, 58, 1))
sketch3.addConstraint(Sketcher.Constraint("Coincident", 58, 2, 59, 1))
sketch3.addConstraint(Sketcher.Constraint("Coincident", 59, 2, 56, 1))
sketch3.addConstraint(Sketcher.Constraint("Coincident", 60, 2, 61, 1))
sketch3.addConstraint(Sketcher.Constraint("Coincident", 61, 2, 62, 1))
sketch3.addConstraint(Sketcher.Constraint("Coincident", 62, 2, 63, 1))
sketch3.addConstraint(Sketcher.Constraint("Coincident", 63, 2, 60, 1))
sketch3.addConstraint(Sketcher.Constraint("Vertical", 0))
sketch3.addConstraint(Sketcher.Constraint("Horizontal", 1))
sketch3.addConstraint(Sketcher.Constraint("Vertical", 2))
sketch3.addConstraint(Sketcher.Constraint("Horizontal", 3))
sketch3.addConstraint(Sketcher.Constraint("Vertical", 4))
sketch3.addConstraint(Sketcher.Constraint("Horizontal", 5))
sketch3.addConstraint(Sketcher.Constraint("Vertical", 6))
sketch3.addConstraint(Sketcher.Constraint("Horizontal", 7))
sketch3.addConstraint(Sketcher.Constraint("Vertical", 8))
sketch3.addConstraint(Sketcher.Constraint("Horizontal", 9))
sketch3.addConstraint(Sketcher.Constraint("Vertical", 10))
sketch3.addConstraint(Sketcher.Constraint("Horizontal", 11))
sketch3.addConstraint(Sketcher.Constraint("Vertical", 12))
sketch3.addConstraint(Sketcher.Constraint("Horizontal", 13))
sketch3.addConstraint(Sketcher.Constraint("Vertical", 14))
sketch3.addConstraint(Sketcher.Constraint("Horizontal", 15))
sketch3.addConstraint(Sketcher.Constraint("Vertical", 16))
sketch3.addConstraint(Sketcher.Constraint("Horizontal", 17))
sketch3.addConstraint(Sketcher.Constraint("Vertical", 18))
sketch3.addConstraint(Sketcher.Constraint("Horizontal", 19))
sketch3.addConstraint(Sketcher.Constraint("Vertical", 20))
sketch3.addConstraint(Sketcher.Constraint("Horizontal", 21))
sketch3.addConstraint(Sketcher.Constraint("Vertical", 22))
sketch3.addConstraint(Sketcher.Constraint("Horizontal", 23))
sketch3.addConstraint(Sketcher.Constraint("Vertical", 24))
sketch3.addConstraint(Sketcher.Constraint("Horizontal", 25))
sketch3.addConstraint(Sketcher.Constraint("Vertical", 26))
sketch3.addConstraint(Sketcher.Constraint("Horizontal", 27))
sketch3.addConstraint(Sketcher.Constraint("Vertical", 28))
sketch3.addConstraint(Sketcher.Constraint("Horizontal", 29))
sketch3.addConstraint(Sketcher.Constraint("Vertical", 30))
sketch3.addConstraint(Sketcher.Constraint("Horizontal", 31))
sketch3.addConstraint(Sketcher.Constraint("Vertical", 32))
sketch3.addConstraint(Sketcher.Constraint("Horizontal", 33))
sketch3.addConstraint(Sketcher.Constraint("Vertical", 34))
sketch3.addConstraint(Sketcher.Constraint("Horizontal", 35))
sketch3.addConstraint(Sketcher.Constraint("Vertical", 36))
sketch3.addConstraint(Sketcher.Constraint("Horizontal", 37))
sketch3.addConstraint(Sketcher.Constraint("Vertical", 38))
sketch3.addConstraint(Sketcher.Constraint("Horizontal", 39))
sketch3.addConstraint(Sketcher.Constraint("Vertical", 40))
sketch3.addConstraint(Sketcher.Constraint("Horizontal", 41))
sketch3.addConstraint(Sketcher.Constraint("Vertical", 42))
sketch3.addConstraint(Sketcher.Constraint("Horizontal", 43))
sketch3.addConstraint(Sketcher.Constraint("Vertical", 44))
sketch3.addConstraint(Sketcher.Constraint("Horizontal", 45))
sketch3.addConstraint(Sketcher.Constraint("Vertical", 46))
sketch3.addConstraint(Sketcher.Constraint("Horizontal", 47))
sketch3.addConstraint(Sketcher.Constraint("Vertical", 48))
sketch3.addConstraint(Sketcher.Constraint("Horizontal", 49))
sketch3.addConstraint(Sketcher.Constraint("Vertical", 50))
sketch3.addConstraint(Sketcher.Constraint("Horizontal", 51))
sketch3.addConstraint(Sketcher.Constraint("Vertical", 52))
sketch3.addConstraint(Sketcher.Constraint("Horizontal", 53))
sketch3.addConstraint(Sketcher.Constraint("Vertical", 54))
sketch3.addConstraint(Sketcher.Constraint("Horizontal", 55))
sketch3.addConstraint(Sketcher.Constraint("Vertical", 56))
sketch3.addConstraint(Sketcher.Constraint("Horizontal", 57))
sketch3.addConstraint(Sketcher.Constraint("Vertical", 58))
sketch3.addConstraint(Sketcher.Constraint("Horizontal", 59))
sketch3.addConstraint(Sketcher.Constraint("Vertical", 60))
sketch3.addConstraint(Sketcher.Constraint("Horizontal", 61))
sketch3.addConstraint(Sketcher.Constraint("Vertical", 62))
sketch3.addConstraint(Sketcher.Constraint("Horizontal", 63))
sketch3.addConstraint(Sketcher.Constraint("Horizontal", 1, 2, 4, 2))
sketch3.addConstraint(Sketcher.Constraint("Horizontal", 3, 2, 6, 2))
sketch3.addConstraint(Sketcher.Constraint("Horizontal", 5, 2, 8, 2))
sketch3.addConstraint(Sketcher.Constraint("Horizontal", 7, 2, 10, 2))
sketch3.addConstraint(Sketcher.Constraint("Horizontal", 9, 2, 12, 2))
sketch3.addConstraint(Sketcher.Constraint("Horizontal", 11, 2, 14, 2))
sketch3.addConstraint(Sketcher.Constraint("Horizontal", 13, 2, 16, 2))
sketch3.addConstraint(Sketcher.Constraint("Horizontal", 15, 2, 18, 2))
sketch3.addConstraint(Sketcher.Constraint("Horizontal", 17, 2, 20, 2))
sketch3.addConstraint(Sketcher.Constraint("Horizontal", 19, 2, 22, 2))
sketch3.addConstraint(Sketcher.Constraint("Horizontal", 21, 2, 24, 2))
sketch3.addConstraint(Sketcher.Constraint("Horizontal", 23, 2, 26, 2))
sketch3.addConstraint(Sketcher.Constraint("Horizontal", 25, 2, 28, 2))
sketch3.addConstraint(Sketcher.Constraint("Horizontal", 27, 2, 30, 2))
sketch3.addConstraint(Sketcher.Constraint("Horizontal", 33, 2, 36, 2))
sketch3.addConstraint(Sketcher.Constraint("Horizontal", 35, 2, 38, 2))
sketch3.addConstraint(Sketcher.Constraint("Horizontal", 37, 2, 40, 2))
sketch3.addConstraint(Sketcher.Constraint("Horizontal", 39, 2, 42, 2))
sketch3.addConstraint(Sketcher.Constraint("Horizontal", 41, 2, 44, 2))
sketch3.addConstraint(Sketcher.Constraint("Horizontal", 43, 2, 46, 2))
sketch3.addConstraint(Sketcher.Constraint("Horizontal", 45, 2, 48, 2))
sketch3.addConstraint(Sketcher.Constraint("Horizontal", 47, 2, 50, 2))
sketch3.addConstraint(Sketcher.Constraint("Horizontal", 49, 2, 52, 2))
sketch3.addConstraint(Sketcher.Constraint("Horizontal", 51, 2, 54, 2))
sketch3.addConstraint(Sketcher.Constraint("Horizontal", 53, 2, 56, 2))
sketch3.addConstraint(Sketcher.Constraint("Horizontal", 55, 2, 58, 2))
sketch3.addConstraint(Sketcher.Constraint("Horizontal", 57, 2, 60, 2))
sketch3.addConstraint(Sketcher.Constraint("Horizontal", 59, 2, 62, 2))
sketch3.addConstraint(Sketcher.Constraint("Vertical", 3, 2, 32, 2))
sketch3.addConstraint(Sketcher.Constraint("Vertical", 2, 2, 33, 2))
sketch3.addConstraint(Sketcher.Constraint("Vertical", 7, 2, 36, 2))
sketch3.addConstraint(Sketcher.Constraint("Vertical", 6, 2, 37, 2))
sketch3.addConstraint(Sketcher.Constraint("Vertical", 11, 2, 40, 2))
sketch3.addConstraint(Sketcher.Constraint("Vertical", 10, 2, 41, 2))
sketch3.addConstraint(Sketcher.Constraint("Vertical", 15, 2, 44, 2))
sketch3.addConstraint(Sketcher.Constraint("Vertical", 14, 2, 45, 2))
sketch3.addConstraint(Sketcher.Constraint("Vertical", 19, 2, 48, 2))
sketch3.addConstraint(Sketcher.Constraint("Vertical", 18, 2, 49, 2))
sketch3.addConstraint(Sketcher.Constraint("Vertical", 23, 2, 52, 2))
sketch3.addConstraint(Sketcher.Constraint("Vertical", 22, 2, 53, 2))
sketch3.addConstraint(Sketcher.Constraint("Vertical", 27, 2, 56, 2))
sketch3.addConstraint(Sketcher.Constraint("Vertical", 26, 2, 57, 2))
sketch3.addConstraint(Sketcher.Constraint("Vertical", 31, 2, 60, 2))
sketch3.addConstraint(Sketcher.Constraint("Vertical", 30, 2, 61, 2))
sketch3.addConstraint(Sketcher.Constraint("Equal", 3, 5))
sketch3.addConstraint(Sketcher.Constraint("Equal", 7, 9))
sketch3.addConstraint(Sketcher.Constraint("Equal", 11, 13))
sketch3.addConstraint(Sketcher.Constraint("Equal", 15, 17))
sketch3.addConstraint(Sketcher.Constraint("Equal", 19, 21))
sketch3.addConstraint(Sketcher.Constraint("Equal", 23, 25))
sketch3.addConstraint(Sketcher.Constraint("Equal", 27, 29))
sketch3.addConstraint(Sketcher.Constraint("Equal", 63, 0))
sketch3.addConstraint(Sketcher.Constraint("Equal", 30, 32))
sketch3.addConstraint(Sketcher.Constraint("DistanceX", 1, 2, 1, 1, Q("0.5 mm")))
sketch3.addConstraint(Sketcher.Constraint("DistanceX", -1, 1, 0, 2, Q("15.25 mm")))
sketch3.addConstraint(Sketcher.Constraint("DistanceX", -1, 1, 4, 2, Q("13.25 mm")))
sketch3.addConstraint(Sketcher.Constraint("DistanceX", -1, 1, 8, 2, Q("11.25 mm")))
sketch3.addConstraint(Sketcher.Constraint("DistanceX", -1, 1, 12, 2, Q("9.25 mm")))
sketch3.addConstraint(Sketcher.Constraint("DistanceX", -1, 1, 16, 2, Q("7.25 mm")))
sketch3.addConstraint(Sketcher.Constraint("DistanceX", -1, 1, 20, 2, Q("5.25 mm")))
sketch3.addConstraint(Sketcher.Constraint("DistanceX", -1, 1, 24, 2, Q("3.25 mm")))
sketch3.addConstraint(Sketcher.Constraint("DistanceX", -1, 1, 28, 2, Q("1.25 mm")))
sketch3.addConstraint(Sketcher.Constraint("DistanceY", -1, 1, 0, 2, Q("0.875 mm")))
sketch3.addConstraint(Sketcher.Constraint("DistanceY", -1, 1, 32, 2, Q("2.875 mm")))
pocket1 = body.newObject("PartDesign::Pocket", "Pocket")
pocket1.Profile = sketch3
pocket1.Length = 4
pocket1.Reversed = True

doc.recompute()
